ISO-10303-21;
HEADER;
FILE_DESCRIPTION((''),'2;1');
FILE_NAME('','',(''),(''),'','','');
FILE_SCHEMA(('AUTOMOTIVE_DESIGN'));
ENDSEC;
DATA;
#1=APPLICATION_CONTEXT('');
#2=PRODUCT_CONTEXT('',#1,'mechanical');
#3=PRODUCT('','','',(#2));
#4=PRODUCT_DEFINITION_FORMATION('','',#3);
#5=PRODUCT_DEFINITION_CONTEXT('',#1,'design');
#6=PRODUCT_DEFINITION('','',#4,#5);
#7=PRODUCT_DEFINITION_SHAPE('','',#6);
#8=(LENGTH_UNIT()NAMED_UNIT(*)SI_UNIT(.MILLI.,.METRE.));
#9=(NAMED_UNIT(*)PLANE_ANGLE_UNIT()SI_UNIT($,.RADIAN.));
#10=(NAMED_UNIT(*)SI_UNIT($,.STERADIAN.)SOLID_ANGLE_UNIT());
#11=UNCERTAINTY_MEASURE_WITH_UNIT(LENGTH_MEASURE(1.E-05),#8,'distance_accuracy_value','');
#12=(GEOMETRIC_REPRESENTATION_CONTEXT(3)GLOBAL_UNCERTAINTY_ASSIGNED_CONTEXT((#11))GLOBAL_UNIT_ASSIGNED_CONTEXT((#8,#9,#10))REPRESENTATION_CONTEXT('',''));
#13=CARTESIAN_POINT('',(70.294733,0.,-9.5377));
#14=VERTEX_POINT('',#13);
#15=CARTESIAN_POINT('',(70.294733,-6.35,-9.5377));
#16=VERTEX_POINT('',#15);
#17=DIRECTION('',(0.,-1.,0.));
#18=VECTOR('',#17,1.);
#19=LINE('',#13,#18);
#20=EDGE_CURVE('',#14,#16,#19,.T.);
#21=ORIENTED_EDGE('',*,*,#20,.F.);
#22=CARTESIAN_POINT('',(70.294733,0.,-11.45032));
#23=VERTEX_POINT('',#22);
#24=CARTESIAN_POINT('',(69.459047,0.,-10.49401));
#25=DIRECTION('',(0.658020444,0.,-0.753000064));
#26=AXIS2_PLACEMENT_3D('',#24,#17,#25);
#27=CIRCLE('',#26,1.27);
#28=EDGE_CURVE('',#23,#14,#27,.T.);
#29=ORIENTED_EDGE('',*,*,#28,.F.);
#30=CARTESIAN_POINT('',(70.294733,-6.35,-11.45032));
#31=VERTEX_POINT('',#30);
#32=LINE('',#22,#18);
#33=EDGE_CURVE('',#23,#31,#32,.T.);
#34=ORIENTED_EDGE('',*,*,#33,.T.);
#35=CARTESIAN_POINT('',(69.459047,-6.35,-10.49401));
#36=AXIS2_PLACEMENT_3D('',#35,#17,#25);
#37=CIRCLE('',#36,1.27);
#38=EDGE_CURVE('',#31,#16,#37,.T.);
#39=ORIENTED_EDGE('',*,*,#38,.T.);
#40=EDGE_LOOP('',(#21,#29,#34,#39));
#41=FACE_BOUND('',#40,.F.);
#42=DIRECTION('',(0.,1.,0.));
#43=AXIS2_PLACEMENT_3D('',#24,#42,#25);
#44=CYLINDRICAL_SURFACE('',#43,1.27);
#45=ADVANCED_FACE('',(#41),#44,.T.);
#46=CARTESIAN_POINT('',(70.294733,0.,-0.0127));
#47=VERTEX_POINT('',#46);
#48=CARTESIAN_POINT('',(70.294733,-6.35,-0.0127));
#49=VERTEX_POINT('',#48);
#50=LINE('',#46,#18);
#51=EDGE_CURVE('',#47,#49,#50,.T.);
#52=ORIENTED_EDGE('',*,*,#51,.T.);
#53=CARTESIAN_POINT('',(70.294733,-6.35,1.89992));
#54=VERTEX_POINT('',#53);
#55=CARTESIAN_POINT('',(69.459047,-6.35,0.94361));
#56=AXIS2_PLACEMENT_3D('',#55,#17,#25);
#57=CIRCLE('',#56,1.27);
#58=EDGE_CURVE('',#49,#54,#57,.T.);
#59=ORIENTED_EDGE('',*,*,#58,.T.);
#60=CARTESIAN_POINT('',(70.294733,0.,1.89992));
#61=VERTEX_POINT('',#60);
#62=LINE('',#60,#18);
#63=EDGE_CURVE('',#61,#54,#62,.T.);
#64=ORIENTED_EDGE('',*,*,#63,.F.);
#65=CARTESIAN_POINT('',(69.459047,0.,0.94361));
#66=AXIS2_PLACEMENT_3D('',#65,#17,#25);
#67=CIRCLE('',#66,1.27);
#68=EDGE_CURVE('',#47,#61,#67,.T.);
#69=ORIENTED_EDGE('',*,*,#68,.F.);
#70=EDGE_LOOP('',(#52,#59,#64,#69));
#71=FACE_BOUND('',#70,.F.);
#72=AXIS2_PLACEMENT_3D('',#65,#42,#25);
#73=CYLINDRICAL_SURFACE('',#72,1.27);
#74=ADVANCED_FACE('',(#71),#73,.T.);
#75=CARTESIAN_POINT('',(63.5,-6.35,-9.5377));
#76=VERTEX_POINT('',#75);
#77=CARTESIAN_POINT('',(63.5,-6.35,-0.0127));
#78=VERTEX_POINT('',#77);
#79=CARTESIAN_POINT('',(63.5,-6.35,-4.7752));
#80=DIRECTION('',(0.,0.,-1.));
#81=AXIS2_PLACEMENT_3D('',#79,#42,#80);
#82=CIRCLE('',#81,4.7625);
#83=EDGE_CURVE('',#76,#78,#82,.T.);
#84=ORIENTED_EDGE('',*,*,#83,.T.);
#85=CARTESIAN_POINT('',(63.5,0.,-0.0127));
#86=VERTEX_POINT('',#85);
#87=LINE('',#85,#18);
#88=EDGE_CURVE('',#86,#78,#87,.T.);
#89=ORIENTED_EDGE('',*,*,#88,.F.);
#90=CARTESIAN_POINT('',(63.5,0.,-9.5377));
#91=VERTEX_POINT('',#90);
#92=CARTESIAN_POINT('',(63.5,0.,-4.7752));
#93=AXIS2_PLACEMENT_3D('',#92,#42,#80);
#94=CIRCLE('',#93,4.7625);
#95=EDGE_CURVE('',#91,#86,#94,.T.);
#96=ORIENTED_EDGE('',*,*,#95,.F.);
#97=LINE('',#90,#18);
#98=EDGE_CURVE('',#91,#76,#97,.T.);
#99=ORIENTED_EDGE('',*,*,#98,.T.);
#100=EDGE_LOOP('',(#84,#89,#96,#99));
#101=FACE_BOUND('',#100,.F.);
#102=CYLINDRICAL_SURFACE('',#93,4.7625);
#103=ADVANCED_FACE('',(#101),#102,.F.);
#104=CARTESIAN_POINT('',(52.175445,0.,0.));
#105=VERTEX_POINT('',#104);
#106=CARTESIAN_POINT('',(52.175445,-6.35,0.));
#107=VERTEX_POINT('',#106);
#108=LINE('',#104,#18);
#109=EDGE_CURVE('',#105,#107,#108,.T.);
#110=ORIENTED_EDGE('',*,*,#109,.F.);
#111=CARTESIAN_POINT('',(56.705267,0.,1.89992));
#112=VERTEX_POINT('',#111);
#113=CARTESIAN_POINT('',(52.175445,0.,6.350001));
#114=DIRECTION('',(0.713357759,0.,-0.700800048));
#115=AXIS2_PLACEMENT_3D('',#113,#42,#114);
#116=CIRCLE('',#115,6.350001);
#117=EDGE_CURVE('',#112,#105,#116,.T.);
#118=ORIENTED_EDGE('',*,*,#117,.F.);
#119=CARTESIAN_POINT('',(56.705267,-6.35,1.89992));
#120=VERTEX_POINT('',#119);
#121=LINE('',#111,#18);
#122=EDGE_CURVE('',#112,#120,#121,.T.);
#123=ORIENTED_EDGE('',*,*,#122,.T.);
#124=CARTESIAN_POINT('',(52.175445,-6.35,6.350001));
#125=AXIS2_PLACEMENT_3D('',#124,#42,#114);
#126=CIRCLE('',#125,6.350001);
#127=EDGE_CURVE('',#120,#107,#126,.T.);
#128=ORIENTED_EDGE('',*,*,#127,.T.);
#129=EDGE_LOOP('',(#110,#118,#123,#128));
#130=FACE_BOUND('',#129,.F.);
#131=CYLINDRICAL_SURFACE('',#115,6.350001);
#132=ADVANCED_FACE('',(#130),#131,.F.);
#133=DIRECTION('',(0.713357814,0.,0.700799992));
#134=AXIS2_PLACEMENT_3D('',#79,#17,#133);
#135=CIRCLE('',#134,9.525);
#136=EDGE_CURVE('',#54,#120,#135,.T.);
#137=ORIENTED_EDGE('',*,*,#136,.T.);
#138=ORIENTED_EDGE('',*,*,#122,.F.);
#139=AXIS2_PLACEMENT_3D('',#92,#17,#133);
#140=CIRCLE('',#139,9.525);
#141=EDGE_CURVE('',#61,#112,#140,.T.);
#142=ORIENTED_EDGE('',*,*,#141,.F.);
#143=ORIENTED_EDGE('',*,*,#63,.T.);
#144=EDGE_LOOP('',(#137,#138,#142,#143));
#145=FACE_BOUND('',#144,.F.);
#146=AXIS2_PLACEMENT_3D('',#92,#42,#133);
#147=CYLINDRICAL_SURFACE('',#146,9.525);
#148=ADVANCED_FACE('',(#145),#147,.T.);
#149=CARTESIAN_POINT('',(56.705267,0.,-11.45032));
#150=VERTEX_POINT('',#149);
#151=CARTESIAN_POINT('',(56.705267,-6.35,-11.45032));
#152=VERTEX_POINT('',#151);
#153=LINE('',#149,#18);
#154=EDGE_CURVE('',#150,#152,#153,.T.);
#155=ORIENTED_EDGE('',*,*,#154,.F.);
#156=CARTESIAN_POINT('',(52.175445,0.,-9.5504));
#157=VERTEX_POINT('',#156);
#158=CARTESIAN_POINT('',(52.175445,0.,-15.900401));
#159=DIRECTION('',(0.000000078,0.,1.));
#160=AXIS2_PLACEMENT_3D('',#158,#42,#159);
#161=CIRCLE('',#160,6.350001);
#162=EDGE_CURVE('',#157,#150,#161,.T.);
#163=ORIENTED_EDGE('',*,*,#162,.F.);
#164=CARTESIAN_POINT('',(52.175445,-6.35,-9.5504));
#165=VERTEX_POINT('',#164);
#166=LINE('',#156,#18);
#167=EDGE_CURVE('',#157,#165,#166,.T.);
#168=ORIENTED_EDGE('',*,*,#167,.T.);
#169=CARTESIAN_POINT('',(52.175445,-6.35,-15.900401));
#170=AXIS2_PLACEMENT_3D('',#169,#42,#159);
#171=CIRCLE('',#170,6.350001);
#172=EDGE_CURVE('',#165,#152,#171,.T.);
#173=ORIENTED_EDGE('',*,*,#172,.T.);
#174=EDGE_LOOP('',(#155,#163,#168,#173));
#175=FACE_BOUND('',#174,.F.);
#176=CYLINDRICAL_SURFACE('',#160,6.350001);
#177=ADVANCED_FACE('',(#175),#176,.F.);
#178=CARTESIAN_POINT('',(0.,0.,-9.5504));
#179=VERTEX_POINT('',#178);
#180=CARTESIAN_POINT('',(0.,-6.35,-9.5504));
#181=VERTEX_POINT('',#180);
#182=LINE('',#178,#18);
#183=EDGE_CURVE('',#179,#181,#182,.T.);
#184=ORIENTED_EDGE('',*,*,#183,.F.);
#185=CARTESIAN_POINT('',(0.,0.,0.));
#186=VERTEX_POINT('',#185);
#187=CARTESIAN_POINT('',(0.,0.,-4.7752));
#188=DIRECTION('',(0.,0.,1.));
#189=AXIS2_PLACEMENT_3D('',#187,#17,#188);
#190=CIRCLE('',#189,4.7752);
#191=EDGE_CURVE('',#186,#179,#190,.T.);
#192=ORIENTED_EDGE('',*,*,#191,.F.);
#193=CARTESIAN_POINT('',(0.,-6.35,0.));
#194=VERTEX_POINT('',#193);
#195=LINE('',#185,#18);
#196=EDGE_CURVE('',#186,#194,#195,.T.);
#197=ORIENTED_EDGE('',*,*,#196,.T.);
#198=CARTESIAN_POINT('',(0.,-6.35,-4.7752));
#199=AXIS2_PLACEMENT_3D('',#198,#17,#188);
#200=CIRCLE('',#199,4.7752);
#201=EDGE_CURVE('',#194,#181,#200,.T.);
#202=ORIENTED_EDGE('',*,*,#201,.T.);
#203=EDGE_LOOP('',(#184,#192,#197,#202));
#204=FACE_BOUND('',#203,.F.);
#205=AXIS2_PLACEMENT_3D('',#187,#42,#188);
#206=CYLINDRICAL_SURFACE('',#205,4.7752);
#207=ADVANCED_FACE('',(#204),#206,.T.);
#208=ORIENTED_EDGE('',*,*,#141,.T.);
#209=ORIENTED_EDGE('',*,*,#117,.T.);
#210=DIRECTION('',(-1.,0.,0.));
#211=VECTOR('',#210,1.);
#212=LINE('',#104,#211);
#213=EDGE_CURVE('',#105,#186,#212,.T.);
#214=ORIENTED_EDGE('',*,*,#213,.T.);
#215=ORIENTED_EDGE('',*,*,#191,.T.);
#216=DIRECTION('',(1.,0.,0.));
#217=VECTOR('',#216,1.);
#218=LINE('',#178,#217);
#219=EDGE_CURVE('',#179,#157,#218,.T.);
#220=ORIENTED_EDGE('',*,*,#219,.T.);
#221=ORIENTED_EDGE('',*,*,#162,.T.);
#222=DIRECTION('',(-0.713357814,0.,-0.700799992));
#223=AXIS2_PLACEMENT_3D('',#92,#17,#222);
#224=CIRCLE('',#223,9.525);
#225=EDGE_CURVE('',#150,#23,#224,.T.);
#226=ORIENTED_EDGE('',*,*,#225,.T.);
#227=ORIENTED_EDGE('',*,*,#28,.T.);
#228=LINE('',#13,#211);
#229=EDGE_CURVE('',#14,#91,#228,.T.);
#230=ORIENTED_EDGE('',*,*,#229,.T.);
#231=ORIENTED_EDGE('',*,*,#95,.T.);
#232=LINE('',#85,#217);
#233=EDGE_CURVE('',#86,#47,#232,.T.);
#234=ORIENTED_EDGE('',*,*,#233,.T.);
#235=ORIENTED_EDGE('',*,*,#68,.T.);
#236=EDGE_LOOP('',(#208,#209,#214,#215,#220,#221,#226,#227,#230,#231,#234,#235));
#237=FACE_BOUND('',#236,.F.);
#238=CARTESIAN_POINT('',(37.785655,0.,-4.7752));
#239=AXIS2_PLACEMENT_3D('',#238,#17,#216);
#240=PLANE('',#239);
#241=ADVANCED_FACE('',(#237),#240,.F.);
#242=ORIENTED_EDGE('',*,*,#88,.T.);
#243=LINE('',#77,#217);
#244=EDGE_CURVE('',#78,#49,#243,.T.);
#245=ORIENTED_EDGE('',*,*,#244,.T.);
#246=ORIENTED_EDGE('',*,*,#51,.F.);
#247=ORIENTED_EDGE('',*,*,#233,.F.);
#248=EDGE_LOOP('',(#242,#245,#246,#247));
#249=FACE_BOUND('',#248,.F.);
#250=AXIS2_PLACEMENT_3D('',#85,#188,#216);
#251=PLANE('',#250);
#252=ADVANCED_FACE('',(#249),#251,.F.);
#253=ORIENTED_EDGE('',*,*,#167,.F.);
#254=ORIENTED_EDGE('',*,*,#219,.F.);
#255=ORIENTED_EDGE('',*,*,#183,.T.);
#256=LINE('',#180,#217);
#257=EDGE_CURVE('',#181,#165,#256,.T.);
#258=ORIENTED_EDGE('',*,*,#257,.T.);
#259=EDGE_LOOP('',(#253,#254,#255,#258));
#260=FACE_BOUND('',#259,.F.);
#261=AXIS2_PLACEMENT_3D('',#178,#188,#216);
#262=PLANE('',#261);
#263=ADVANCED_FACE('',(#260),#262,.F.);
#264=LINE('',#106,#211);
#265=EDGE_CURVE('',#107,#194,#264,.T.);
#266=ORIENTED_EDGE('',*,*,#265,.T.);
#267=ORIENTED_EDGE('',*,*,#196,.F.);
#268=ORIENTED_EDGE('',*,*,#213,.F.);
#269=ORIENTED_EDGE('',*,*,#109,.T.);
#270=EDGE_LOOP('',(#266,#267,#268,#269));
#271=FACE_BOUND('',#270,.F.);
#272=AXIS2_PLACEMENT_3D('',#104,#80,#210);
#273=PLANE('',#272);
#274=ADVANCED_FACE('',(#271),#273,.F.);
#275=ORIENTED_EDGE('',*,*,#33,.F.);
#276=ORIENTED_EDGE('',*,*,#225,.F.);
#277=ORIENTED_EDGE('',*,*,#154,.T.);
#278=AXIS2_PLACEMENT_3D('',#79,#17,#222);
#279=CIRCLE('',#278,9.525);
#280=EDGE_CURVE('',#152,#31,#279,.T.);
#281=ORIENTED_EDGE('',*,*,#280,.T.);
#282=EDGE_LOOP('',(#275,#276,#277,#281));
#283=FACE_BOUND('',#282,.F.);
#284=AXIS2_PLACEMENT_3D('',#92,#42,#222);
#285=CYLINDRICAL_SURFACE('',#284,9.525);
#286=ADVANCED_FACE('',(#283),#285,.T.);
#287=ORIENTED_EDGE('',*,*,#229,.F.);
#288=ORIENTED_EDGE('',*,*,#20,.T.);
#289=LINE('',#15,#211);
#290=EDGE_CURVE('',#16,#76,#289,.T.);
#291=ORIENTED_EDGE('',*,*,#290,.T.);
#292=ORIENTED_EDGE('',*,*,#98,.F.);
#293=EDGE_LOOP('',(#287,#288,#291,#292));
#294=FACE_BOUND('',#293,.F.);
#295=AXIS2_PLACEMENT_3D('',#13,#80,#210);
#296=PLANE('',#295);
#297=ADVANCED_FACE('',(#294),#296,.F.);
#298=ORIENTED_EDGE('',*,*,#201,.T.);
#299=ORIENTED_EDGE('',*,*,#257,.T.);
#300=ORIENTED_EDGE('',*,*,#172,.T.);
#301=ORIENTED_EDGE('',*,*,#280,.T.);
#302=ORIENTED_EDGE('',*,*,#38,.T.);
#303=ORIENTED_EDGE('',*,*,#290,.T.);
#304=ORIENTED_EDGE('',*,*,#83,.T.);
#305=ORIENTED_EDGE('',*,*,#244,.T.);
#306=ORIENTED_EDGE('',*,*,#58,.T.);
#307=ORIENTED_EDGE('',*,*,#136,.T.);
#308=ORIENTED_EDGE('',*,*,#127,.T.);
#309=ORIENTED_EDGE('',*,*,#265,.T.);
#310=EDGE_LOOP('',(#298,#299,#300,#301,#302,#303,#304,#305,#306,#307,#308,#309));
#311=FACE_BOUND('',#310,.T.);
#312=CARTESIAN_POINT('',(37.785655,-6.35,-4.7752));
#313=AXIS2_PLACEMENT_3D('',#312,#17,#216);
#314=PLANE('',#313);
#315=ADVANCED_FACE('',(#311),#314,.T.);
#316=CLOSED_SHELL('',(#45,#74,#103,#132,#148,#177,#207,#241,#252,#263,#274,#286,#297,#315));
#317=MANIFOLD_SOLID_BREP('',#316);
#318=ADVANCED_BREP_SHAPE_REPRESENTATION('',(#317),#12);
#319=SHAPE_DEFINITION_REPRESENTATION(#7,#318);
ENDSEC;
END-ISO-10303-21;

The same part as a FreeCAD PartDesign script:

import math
import FreeCAD as App
import Part
import Sketcher
Q = App.Units.Quantity

doc = App.newDocument("Part")
params = doc.addObject("Spreadsheet::Sheet", "Params")
for row, (alias, value) in enumerate([
    ("sketch1_radius", "0.25 in"),
    ("sketch1_radius2", "0.05 in"),
    ("sketch1_radius3", "0.188 in"),
    ("sketch1_radius4", "0.375 in"),
    ("sketch1_radius5", "0.1875 in"),
    ("pad1_length", "0.25 in"),
], start=1):
    params.set(f"A{row}", alias)
    params.set(f"B{row}", "=" + value)
    params.setAlias(f"B{row}", alias)

body = doc.addObject("PartDesign::Body", "Body")

sketch1 = body.newObject("Sketcher::SketchObject", "Sketch")
sketch1.AttachmentSupport = (doc.getObject("XZ_Plane"), [""])
sketch1.MapMode = "FlatFace"
sketch1.addGeometry([
    Part.LineSegment(App.Vector(52.2, 0, 0), App.Vector(0, 0, 0)),
    Part.ArcOfCircle(Part.Circle(App.Vector(0, -4.8, 0), App.Vector(0, 0, 1), 4.8), math.radians(90), math.radians(270)),
    Part.LineSegment(App.Vector(0, -9.6, 0), App.Vector(52.2, -9.6, 0)),
    Part.ArcOfCircle(Part.Circle(App.Vector(52.2, -15.9, 0), App.Vector(0, 0, 1), 6.4), math.radians(44), math.radians(90)),
    Part.ArcOfCircle(Part.Circle(App.Vector(63.5, -4.8, 0), App.Vector(0, 0, 1), 9.5), math.radians(-136), math.radians(-44)),
    Part.ArcOfCircle(Part.Circle(App.Vector(69.5, -10.5, 0), App.Vector(0, 0, 1), 1.3), math.radians(-49), math.radians(49)),
    Part.LineSegment(App.Vector(70.3, -9.5, 0), App.Vector(63.5, -9.5, 0)),
    Part.ArcOfCircle(Part.Circle(App.Vector(63.5, -4.8, 0), App.Vector(0, 0, 1), 4.8), math.radians(90), math.radians(270)),
    Part.LineSegment(App.Vector(63.5, 0, 0), App.Vector(70.3, 0, 0)),
    Part.ArcOfCircle(Part.Circle(App.Vector(69.5, 0.9, 0), App.Vector(0, 0, 1), 1.3), math.radians(-49), math.radians(49)),
    Part.ArcOfCircle(Part.Circle(App.Vector(63.5, -4.8, 0), App.Vector(0, 0, 1), 9.5), math.radians(44), math.radians(136)),
    Part.ArcOfCircle(Part.Circle(App.Vector(52.2, 6.4, 0), App.Vector(0, 0, 1), 6.4), math.radians(-90), math.radians(-44)),
], False)
sketch1.addConstraint([
    Sketcher.Constraint("Tangent", 0, 2, 1, 1),
    Sketcher.Constraint("Tangent", 1, 2, 2, 1),
    Sketcher.Constraint("Tangent", 2, 2, 3, 2),
    Sketcher.Constraint("Tangent", 3, 1, 4, 1),
    Sketcher.Constraint("Coincident", 4, 2, 5, 1),
    Sketcher.Constraint("Coincident", 5, 2, 6, 1),
    Sketcher.Constraint("Tangent", 6, 2, 7, 2),
    Sketcher.Constraint("Tangent", 7, 1, 8, 1),
    Sketcher.Constraint("Coincident", 8, 2, 9, 1),
    Sketcher.Constraint("Coincident", 9, 2, 10, 1),
    Sketcher.Constraint("Tangent", 10, 2, 11, 2),
    Sketcher.Constraint("Tangent", 11, 1, 0, 1),
    Sketcher.Constraint("Horizontal", 0),
    Sketcher.Constraint("Horizontal", 2),
    Sketcher.Constraint("Horizontal", 6),
    Sketcher.Constraint("Horizontal", 8),
    Sketcher.Constraint("Coincident", 0, 2, -1, 1),
    Sketcher.Constraint("Coincident", 7, 3, 4, 3),
    Sketcher.Constraint("Coincident", 10, 3, 4, 3),
    Sketcher.Constraint("Equal", 5, 9),
    Sketcher.Constraint("Equal", 4, 10),
    Sketcher.Constraint("Equal", 3, 11),
    Sketcher.Constraint("Horizontal", 1, 3, 4, 3),
    Sketcher.Constraint("Horizontal", 3, 1, 4, 2),
    Sketcher.Constraint("Horizontal", 9, 2, 10, 2),
    Sketcher.Constraint("Vertical", 5, 3, 9, 3),
    Sketcher.Constraint("Vertical", 4, 2, 5, 2),
    Sketcher.Constraint("Radius", 3, Q("0.25 in")),
    Sketcher.Constraint("Radius", 5, Q("0.05 in")),
    Sketcher.Constraint("Radius", 1, Q("0.188 in")),
    Sketcher.Constraint("Radius", 4, Q("0.375 in")),
    Sketcher.Constraint("Radius", 7, Q("0.1875 in")),
    Sketcher.Constraint("DistanceX", -1, 1, 4, 3, Q("2.5 in")),
])
sketch1.setExpression("Constraints[27]", "Params.sketch1_radius")
sketch1.setExpression("Constraints[28]", "Params.sketch1_radius2")
sketch1.setExpression("Constraints[29]", "Params.sketch1_radius3")
sketch1.setExpression("Constraints[30]", "Params.sketch1_radius4")
sketch1.setExpression("Constraints[31]", "Params.sketch1_radius5")
pad1 = body.newObject("PartDesign::Pad", "Pad")
pad1.Profile = sketch1
pad1.setExpression("Length", "Params.pad1_length")

doc.recompute()
